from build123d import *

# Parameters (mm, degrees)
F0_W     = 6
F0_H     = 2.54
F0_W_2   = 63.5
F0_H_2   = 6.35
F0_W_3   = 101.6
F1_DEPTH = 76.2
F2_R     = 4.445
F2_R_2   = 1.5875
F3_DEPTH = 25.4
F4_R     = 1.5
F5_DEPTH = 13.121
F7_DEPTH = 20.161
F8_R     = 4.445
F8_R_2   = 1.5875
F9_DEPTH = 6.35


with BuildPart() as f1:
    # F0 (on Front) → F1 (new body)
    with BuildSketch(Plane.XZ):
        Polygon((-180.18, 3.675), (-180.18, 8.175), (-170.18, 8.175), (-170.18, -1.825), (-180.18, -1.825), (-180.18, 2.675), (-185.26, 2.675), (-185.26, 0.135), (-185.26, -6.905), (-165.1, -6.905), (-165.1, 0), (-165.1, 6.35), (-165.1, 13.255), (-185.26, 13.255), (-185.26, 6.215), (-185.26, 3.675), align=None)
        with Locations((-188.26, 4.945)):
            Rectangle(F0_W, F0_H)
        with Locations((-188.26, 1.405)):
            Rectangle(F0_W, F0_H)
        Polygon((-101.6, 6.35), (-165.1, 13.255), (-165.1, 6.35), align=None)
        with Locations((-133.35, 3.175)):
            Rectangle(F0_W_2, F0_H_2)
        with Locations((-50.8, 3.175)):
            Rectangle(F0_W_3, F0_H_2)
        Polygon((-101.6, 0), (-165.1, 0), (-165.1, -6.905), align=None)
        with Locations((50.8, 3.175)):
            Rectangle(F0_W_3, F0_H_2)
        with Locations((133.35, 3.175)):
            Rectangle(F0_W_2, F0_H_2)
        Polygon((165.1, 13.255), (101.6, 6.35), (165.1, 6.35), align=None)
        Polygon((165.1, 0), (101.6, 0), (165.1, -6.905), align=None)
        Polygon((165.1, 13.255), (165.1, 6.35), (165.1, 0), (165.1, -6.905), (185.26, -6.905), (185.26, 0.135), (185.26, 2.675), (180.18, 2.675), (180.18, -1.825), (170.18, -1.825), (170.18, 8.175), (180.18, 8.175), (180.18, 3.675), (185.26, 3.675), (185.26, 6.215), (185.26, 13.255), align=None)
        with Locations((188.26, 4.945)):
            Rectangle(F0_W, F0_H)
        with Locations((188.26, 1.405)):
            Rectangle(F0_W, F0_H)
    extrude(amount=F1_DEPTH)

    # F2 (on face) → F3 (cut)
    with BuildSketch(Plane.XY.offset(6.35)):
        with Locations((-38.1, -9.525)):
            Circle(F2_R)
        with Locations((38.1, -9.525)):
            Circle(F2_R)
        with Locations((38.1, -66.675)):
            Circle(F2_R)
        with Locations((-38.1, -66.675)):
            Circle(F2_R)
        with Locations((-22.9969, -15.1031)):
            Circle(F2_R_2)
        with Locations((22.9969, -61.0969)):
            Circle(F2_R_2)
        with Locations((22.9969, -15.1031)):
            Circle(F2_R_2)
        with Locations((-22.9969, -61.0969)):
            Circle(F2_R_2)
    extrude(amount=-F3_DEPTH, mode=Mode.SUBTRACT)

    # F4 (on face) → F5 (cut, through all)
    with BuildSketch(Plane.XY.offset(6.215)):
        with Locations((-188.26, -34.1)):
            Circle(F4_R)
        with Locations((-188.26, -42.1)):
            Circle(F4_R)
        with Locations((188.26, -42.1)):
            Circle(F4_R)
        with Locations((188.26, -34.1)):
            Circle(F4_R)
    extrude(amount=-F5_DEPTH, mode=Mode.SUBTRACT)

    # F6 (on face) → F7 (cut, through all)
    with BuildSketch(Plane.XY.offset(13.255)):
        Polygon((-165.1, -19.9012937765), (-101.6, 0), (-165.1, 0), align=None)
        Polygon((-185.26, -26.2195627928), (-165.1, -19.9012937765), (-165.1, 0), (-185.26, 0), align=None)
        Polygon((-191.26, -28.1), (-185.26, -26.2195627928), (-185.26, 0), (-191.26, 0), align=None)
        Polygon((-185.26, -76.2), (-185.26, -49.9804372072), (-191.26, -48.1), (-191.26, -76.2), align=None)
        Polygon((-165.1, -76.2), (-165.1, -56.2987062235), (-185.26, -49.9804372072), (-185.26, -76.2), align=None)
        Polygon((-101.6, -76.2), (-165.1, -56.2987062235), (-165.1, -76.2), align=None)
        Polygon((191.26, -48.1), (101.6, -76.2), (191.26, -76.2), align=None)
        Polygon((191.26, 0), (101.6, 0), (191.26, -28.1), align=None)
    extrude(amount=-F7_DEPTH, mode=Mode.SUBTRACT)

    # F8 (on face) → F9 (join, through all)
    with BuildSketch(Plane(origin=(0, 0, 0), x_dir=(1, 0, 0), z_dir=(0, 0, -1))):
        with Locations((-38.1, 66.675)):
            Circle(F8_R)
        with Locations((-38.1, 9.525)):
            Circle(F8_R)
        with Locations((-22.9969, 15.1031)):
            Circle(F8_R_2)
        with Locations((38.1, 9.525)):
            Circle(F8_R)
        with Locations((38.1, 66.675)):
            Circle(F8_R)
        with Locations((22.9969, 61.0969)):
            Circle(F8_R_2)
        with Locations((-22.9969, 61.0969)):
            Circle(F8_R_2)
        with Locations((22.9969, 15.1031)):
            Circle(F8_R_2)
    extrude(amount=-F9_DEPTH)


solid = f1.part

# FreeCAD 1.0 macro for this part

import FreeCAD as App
import Part
import Sketcher
from FreeCAD import Vector
Q = App.Units.Quantity


def add_polygon(sketch, points):
    """Adds a closed chain of lines whose ends are joined by coincident constraints."""
    first, n = sketch.GeometryCount, len(points)
    for a, b in zip(points, points[1:] + points[:1]):
        sketch.addGeometry(Part.LineSegment(App.Vector(*a, 0), App.Vector(*b, 0)), False)
    for i in range(n):
        sketch.addConstraint(Sketcher.Constraint("Coincident", first + i, 2, first + (i + 1) % n, 1))

doc = App.newDocument("Part")
body = doc.addObject("PartDesign::Body", "Body")

# Sketch on XZ plane
sketch1 = doc.addObject("Sketcher::SketchObject", "Sketch")
body.addObject(sketch1)
sketch1.AttachmentSupport = (doc.XZ_Plane, [""])
sketch1.MapMode = "FlatFace"
add_polygon(sketch1, [(-180.2, 3.7), (-180.2, 8.2), (-170.2, 8.2), (-170.2, -1.8), (-180.2, -1.8), (-180.2, 2.7), (-191.3, 2.7), (-191.3, 0.1), (-185.3, 0.1), (-185.3, -6.9), (-165.1, -6.9), (-101.6, 0), (101.6, 0), (165.1, -6.9), (185.3, -6.9), (185.3, 0.1), (191.3, 0.1), (191.3, 2.7), (180.2, 2.7), (180.2, -1.8), (170.2, -1.8), (170.2, 8.2), (180.2, 8.2), (180.2, 3.7), (191.3, 3.7), (191.3, 6.2), (185.3, 6.2), (185.3, 13.3), (165.1, 13.3), (101.6, 6.3), (-101.6, 6.3), (-165.1, 13.3), (-185.3, 13.3), (-185.3, 6.2), (-191.3, 6.2), (-191.3, 3.7)])  # lines 0-35
sketch1.addConstraint(Sketcher.Constraint("Vertical", 0))
sketch1.addConstraint(Sketcher.Constraint("Horizontal", 1))
sketch1.addConstraint(Sketcher.Constraint("Vertical", 2))
sketch1.addConstraint(Sketcher.Constraint("Horizontal", 3))
sketch1.addConstraint(Sketcher.Constraint("Vertical", 4))
sketch1.addConstraint(Sketcher.Constraint("Horizontal", 5))
sketch1.addConstraint(Sketcher.Constraint("Vertical", 6))
sketch1.addConstraint(Sketcher.Constraint("Horizontal", 7))
sketch1.addConstraint(Sketcher.Constraint("Vertical", 8))
sketch1.addConstraint(Sketcher.Constraint("Horizontal", 9))
sketch1.addConstraint(Sketcher.Constraint("Horizontal", 11))
sketch1.addConstraint(Sketcher.Constraint("Horizontal", 13))
sketch1.addConstraint(Sketcher.Constraint("Vertical", 14))
sketch1.addConstraint(Sketcher.Constraint("Horizontal", 15))
sketch1.addConstraint(Sketcher.Constraint("Vertical", 16))
sketch1.addConstraint(Sketcher.Constraint("Horizontal", 17))
sketch1.addConstraint(Sketcher.Constraint("Vertical", 18))
sketch1.addConstraint(Sketcher.Constraint("Horizontal", 19))
sketch1.addConstraint(Sketcher.Constraint("Vertical", 20))
sketch1.addConstraint(Sketcher.Constraint("Horizontal", 21))
sketch1.addConstraint(Sketcher.Constraint("Vertical", 22))
sketch1.addConstraint(Sketcher.Constraint("Horizontal", 23))
sketch1.addConstraint(Sketcher.Constraint("Vertical", 24))
sketch1.addConstraint(Sketcher.Constraint("Horizontal", 25))
sketch1.addConstraint(Sketcher.Constraint("Vertical", 26))
sketch1.addConstraint(Sketcher.Constraint("Horizontal", 27))
sketch1.addConstraint(Sketcher.Constraint("Horizontal", 29))
sketch1.addConstraint(Sketcher.Constraint("Horizontal", 31))
sketch1.addConstraint(Sketcher.Constraint("Vertical", 32))
sketch1.addConstraint(Sketcher.Constraint("Horizontal", 33))
sketch1.addConstraint(Sketcher.Constraint("Vertical", 34))
sketch1.addConstraint(Sketcher.Constraint("Horizontal", 35))
sketch1.addConstraint(Sketcher.Constraint("Symmetric", 10, 2, 11, 2, -1, 1))
sketch1.addConstraint(Sketcher.Constraint("Symmetric", 9, 2, 12, 2, -2))
sketch1.addConstraint(Sketcher.Constraint("Symmetric", 7, 2, 14, 2, -2))
sketch1.addConstraint(Sketcher.Constraint("Symmetric", 5, 2, 16, 2, -2))
sketch1.addConstraint(Sketcher.Constraint("Symmetric", 3, 2, 18, 2, -2))
sketch1.addConstraint(Sketcher.Constraint("Symmetric", 1, 2, 20, 2, -2))
sketch1.addConstraint(Sketcher.Constraint("Symmetric", 27, 2, 30, 2, -2))
sketch1.addConstraint(Sketcher.Constraint("Symmetric", 25, 2, 32, 2, -2))
sketch1.addConstraint(Sketcher.Constraint("Symmetric", 23, 2, 34, 2, -2))
sketch1.addConstraint(Sketcher.Constraint("Parallel", 10, 28))
sketch1.addConstraint(Sketcher.Constraint("Parallel", 12, 30))
sketch1.addConstraint(Sketcher.Constraint("Vertical", 0, 2, 3, 2))
sketch1.addConstraint(Sketcher.Constraint("Vertical", 18, 2, 21, 2))
sketch1.addConstraint(Sketcher.Constraint("Vertical", 16, 2, 23, 2))
sketch1.addConstraint(Sketcher.Constraint("Vertical", 14, 2, 25, 2))
sketch1.addConstraint(Sketcher.Constraint("Vertical", 12, 2, 27, 2))
sketch1.addConstraint(Sketcher.Constraint("Vertical", 11, 2, 28, 2))
sketch1.addConstraint(Sketcher.Constraint("Equal", 21, 2))
sketch1.addConstraint(Sketcher.Constraint("Equal", 0, 4))
sketch1.addConstraint(Sketcher.Constraint("Equal", 16, 24))
sketch1.addConstraint(Sketcher.Constraint("Equal", 14, 26))
sketch1.addConstraint(Sketcher.Constraint("DistanceX", 11, 1, 11, 2, Q("8 in")))
sketch1.addConstraint(Sketcher.Constraint("DistanceY", 6, 2, 6, 1, Q("0.1 in")))
sketch1.addConstraint(Sketcher.Constraint("DistanceX", 9, 2, 12, 2, Q("13 in")))
sketch1.addConstraint(Sketcher.Constraint("DistanceX", 1, 2, -1, 1, Q("6.7 in")))
sketch1.addConstraint(Sketcher.Constraint("DistanceX", 7, 2, 3, 2, Q("0.2 in")))
sketch1.addConstraint(Sketcher.Constraint("DistanceY", 8, 2, 3, 2, Q("0.2 in")))
sketch1.addConstraint(Sketcher.Constraint("DistanceY", -1, 1, 28, 2, Q("0.25 in")))
sketch1.addConstraint(Sketcher.Constraint("DistanceX", 1, 1, 1, 2, Q("10 mm")))
sketch1.addConstraint(Sketcher.Constraint("DistanceX", 5, 2, 5, 1, Q("11.08 mm")))
sketch1.addConstraint(Sketcher.Constraint("DistanceY", 0, 1, 0, 2, Q("4.5 mm")))
pad1 = doc.addObject("PartDesign::Pad", "Pad")
body.addObject(pad1)
pad1.Profile = sketch1
pad1.Length = Q("3 in")

# Sketch on XY plane
sketch2 = doc.addObject("Sketcher::SketchObject", "Sketch001")
body.addObject(sketch2)
sketch2.AttachmentSupport = (doc.XY_Plane, [""])
sketch2.MapMode = "FlatFace"
sketch2.AttachmentOffset = App.Placement(Vector(0, 0, 0.25 * 25.4), App.Rotation())
sketch2.addGeometry(Part.Circle(Vector(-38.1, -9.5, 0), Vector(0, 0, 1), 4.4), False)
sketch2.addGeometry(Part.Circle(Vector(38.1, -9.5, 0), Vector(0, 0, 1), 4.4), False)
sketch2.addGeometry(Part.Circle(Vector(38.1, -66.7, 0), Vector(0, 0, 1), 4.4), False)
sketch2.addGeometry(Part.Circle(Vector(-38.1, -66.7, 0), Vector(0, 0, 1), 4.4), False)
sketch2.addGeometry(Part.Circle(Vector(-23, -15.1, 0), Vector(0, 0, 1), 1.6), False)
sketch2.addGeometry(Part.Circle(Vector(23, -61.1, 0), Vector(0, 0, 1), 1.6), False)
sketch2.addGeometry(Part.Circle(Vector(23, -15.1, 0), Vector(0, 0, 1), 1.6), False)
sketch2.addGeometry(Part.Circle(Vector(-23, -61.1, 0), Vector(0, 0, 1), 1.6), False)
sketch2.addConstraint(Sketcher.Constraint("Equal", 0, 1))
sketch2.addConstraint(Sketcher.Constraint("Equal", 1, 2))
sketch2.addConstraint(Sketcher.Constraint("Equal", 2, 3))
sketch2.addConstraint(Sketcher.Constraint("Equal", 4, 5))
sketch2.addConstraint(Sketcher.Constraint("Equal", 5, 6))
sketch2.addConstraint(Sketcher.Constraint("Equal", 6, 7))
sketch2.addConstraint(Sketcher.Constraint("Symmetric", 0, 3, 1, 3, -2))
sketch2.addConstraint(Sketcher.Constraint("Symmetric", 2, 3, 3, 3, -2))
sketch2.addConstraint(Sketcher.Constraint("Symmetric", 4, 3, 6, 3, -2))
sketch2.addConstraint(Sketcher.Constraint("Symmetric", 5, 3, 7, 3, -2))
sketch2.addConstraint(Sketcher.Constraint("Vertical", 1, 3, 2, 3))
sketch2.addConstraint(Sketcher.Constraint("Vertical", 5, 3, 6, 3))
sketch2.addConstraint(Sketcher.Constraint("Diameter", 0, Q("0.35 in")))
sketch2.addConstraint(Sketcher.Constraint("Diameter", 4, Q("0.125 in")))
sketch2.addConstraint(Sketcher.Constraint("DistanceX", 0, 3, 1, 3, Q("3 in")))
sketch2.addConstraint(Sketcher.Constraint("DistanceY", 2, 3, 1, 3, Q("2.25 in")))
sketch2.addConstraint(Sketcher.Constraint("DistanceY", 0, 3, -1, 1, Q("0.375 in")))
sketch2.addConstraint(Sketcher.Constraint("DistanceX", 4, 3, -1, 1, Q("22.9969 mm")))
sketch2.addConstraint(Sketcher.Constraint("DistanceY", 4, 3, -1, 1, Q("15.1031 mm")))
sketch2.addConstraint(Sketcher.Constraint("DistanceY", 5, 3, -1, 1, Q("61.0969 mm")))
pocket1 = doc.addObject("PartDesign::Pocket", "Pocket")
body.addObject(pocket1)
pocket1.Profile = sketch2
pocket1.Length = Q("1 in")

# Sketch on XY plane
sketch3 = doc.addObject("Sketcher::SketchObject", "Sketch002")
body.addObject(sketch3)
sketch3.AttachmentSupport = (doc.XY_Plane, [""])
sketch3.MapMode = "FlatFace"
sketch3.AttachmentOffset = App.Placement(Vector(0, 0, 6.215), App.Rotation())
sketch3.addGeometry(Part.Circle(Vector(-188.3, -34.1, 0), Vector(0, 0, 1), 1.5), False)
sketch3.addGeometry(Part.Circle(Vector(-188.3, -42.1, 0), Vector(0, 0, 1), 1.5), False)
sketch3.addGeometry(Part.Circle(Vector(188.3, -42.1, 0), Vector(0, 0, 1), 1.5), False)
sketch3.addGeometry(Part.Circle(Vector(188.3, -34.1, 0), Vector(0, 0, 1), 1.5), False)
sketch3.addConstraint(Sketcher.Constraint("Equal", 0, 1))
sketch3.addConstraint(Sketcher.Constraint("Equal", 1, 2))
sketch3.addConstraint(Sketcher.Constraint("Equal", 2, 3))
sketch3.addConstraint(Sketcher.Constraint("Symmetric", 1, 3, 2, 3, -2))
sketch3.addConstraint(Sketcher.Constraint("Symmetric", 0, 3, 3, 3, -2))
sketch3.addConstraint(Sketcher.Constraint("Vertical", 0, 3, 1, 3))
sketch3.addConstraint(Sketcher.Constraint("Diameter", 0, Q("3 mm")))
sketch3.addConstraint(Sketcher.Constraint("DistanceX", 0, 3, -1, 1, Q("188.26 mm")))
sketch3.addConstraint(Sketcher.Constraint("DistanceY", 0, 3, -1, 1, Q("34.1 mm")))
sketch3.addConstraint(Sketcher.Constraint("DistanceY", 1, 3, -1, 1, Q("42.1 mm")))
pocket2 = doc.addObject("PartDesign::Pocket", "Pocket001")
body.addObject(pocket2)
pocket2.Profile = sketch3
pocket2.Type = "ThroughAll"

# Sketch on XY plane
sketch4 = doc.addObject("Sketcher::SketchObject", "Sketch003")
body.addObject(sketch4)
sketch4.AttachmentSupport = (doc.XY_Plane, [""])
sketch4.MapMode = "FlatFace"
sketch4.AttachmentOffset = App.Placement(Vector(0, 0, 13.255), App.Rotation())
add_polygon(sketch4, [(-102, 0), (-191, 0), (-191, -28), (-185, -26)])  # lines 0-3
add_polygon(sketch4, [(-185, -50), (-191, -48), (-191, -76), (-102, -76)])  # lines 4-7
add_polygon(sketch4, [(191, -48), (102, -76), (191, -76)])  # lines 8-10
add_polygon(sketch4, [(191, 0), (102, 0), (191, -28)])  # lines 11-13
sketch4.addConstraint(Sketcher.Constraint("Horizontal", 0))
sketch4.addConstraint(Sketcher.Constraint("Vertical", 1))
sketch4.addConstraint(Sketcher.Constraint("Vertical", 5))
sketch4.addConstraint(Sketcher.Constraint("Horizontal", 6))
sketch4.addConstraint(Sketcher.Constraint("Horizontal", 9))
sketch4.addConstraint(Sketcher.Constraint("Vertical", 10))
sketch4.addConstraint(Sketcher.Constraint("Horizontal", 11))
sketch4.addConstraint(Sketcher.Constraint("Vertical", 13))
sketch4.addConstraint(Sketcher.Constraint("Symmetric", 3, 2, 11, 2, -1, 1))
sketch4.addConstraint(Sketcher.Constraint("Symmetric", 6, 2, 8, 2, -2))
sketch4.addConstraint(Sketcher.Constraint("Symmetric", 4, 2, 10, 2, -2))
sketch4.addConstraint(Sketcher.Constraint("Symmetric", 1, 2, 12, 2, -2))
sketch4.addConstraint(Sketcher.Constraint("PointOnObject", 0, 2, -1))
sketch4.addConstraint(Sketcher.Constraint("Parallel", 2, 3))
sketch4.addConstraint(Sketcher.Constraint("Parallel", 4, 7))
sketch4.addConstraint(Sketcher.Constraint("Parallel", 3, 8))
sketch4.addConstraint(Sketcher.Constraint("Vertical", 1, 2, 4, 2))
sketch4.addConstraint(Sketcher.Constraint("Vertical", 3, 2, 6, 2))
sketch4.addConstraint(Sketcher.Constraint("Vertical", 2, 2, 7, 2))
sketch4.addConstraint(Sketcher.Constraint("DistanceX", 3, 2, -1, 1, Q("4 in")))
sketch4.addConstraint(Sketcher.Constraint("DistanceY", 5, 2, -1, 1, Q("3 in")))
sketch4.addConstraint(Sketcher.Constraint("DistanceX", 0, 2, 0, 1, Q("89.66 mm")))
sketch4.addConstraint(Sketcher.Constraint("DistanceY", 1, 2, 1, 1, Q("28.1 mm")))
sketch4.addConstraint(Sketcher.Constraint("DistanceX", 2, 2, -1, 1, Q("185.26 mm")))
pocket3 = doc.addObject("PartDesign::Pocket", "Pocket002")
body.addObject(pocket3)
pocket3.Profile = sketch4
pocket3.Type = "ThroughAll"

# Sketch on XY plane
sketch5 = doc.addObject("Sketcher::SketchObject", "Sketch004")
body.addObject(sketch5)
sketch5.AttachmentSupport = (doc.XY_Plane, [""])
sketch5.MapMode = "FlatFace"
sketch5.addGeometry(Part.Circle(Vector(-38.1, -66.7, 0), Vector(0, 0, 1), 4.4), False)
sketch5.addGeometry(Part.Circle(Vector(-38.1, -9.5, 0), Vector(0, 0, 1), 4.4), False)
sketch5.addGeometry(Part.Circle(Vector(-23, -15.1, 0), Vector(0, 0, 1), 1.6), False)
sketch5.addGeometry(Part.Circle(Vector(38.1, -9.5, 0), Vector(0, 0, 1), 4.4), False)
sketch5.addGeometry(Part.Circle(Vector(38.1, -66.7, 0), Vector(0, 0, 1), 4.4), False)
sketch5.addGeometry(Part.Circle(Vector(23, -61.1, 0), Vector(0, 0, 1), 1.6), False)
sketch5.addGeometry(Part.Circle(Vector(-23, -61.1, 0), Vector(0, 0, 1), 1.6), False)
sketch5.addGeometry(Part.Circle(Vector(23, -15.1, 0), Vector(0, 0, 1), 1.6), False)
sketch5.addConstraint(Sketcher.Constraint("Equal", 0, 1))
sketch5.addConstraint(Sketcher.Constraint("Equal", 1, 3))
sketch5.addConstraint(Sketcher.Constraint("Equal", 3, 4))
sketch5.addConstraint(Sketcher.Constraint("Equal", 2, 5))
sketch5.addConstraint(Sketcher.Constraint("Equal", 5, 6))
sketch5.addConstraint(Sketcher.Constraint("Equal", 6, 7))
sketch5.addConstraint(Sketcher.Constraint("Symmetric", 1, 3, 3, 3, -2))
sketch5.addConstraint(Sketcher.Constraint("Symmetric", 0, 3, 4, 3, -2))
sketch5.addConstraint(Sketcher.Constraint("Symmetric", 5, 3, 6, 3, -2))
sketch5.addConstraint(Sketcher.Constraint("Symmetric", 2, 3, 7, 3, -2))
sketch5.addConstraint(Sketcher.Constraint("Vertical", 0, 3, 1, 3))
sketch5.addConstraint(Sketcher.Constraint("Vertical", 2, 3, 6, 3))
sketch5.addConstraint(Sketcher.Constraint("Diameter", 0, Q("0.35 in")))
sketch5.addConstraint(Sketcher.Constraint("Diameter", 2, Q("0.125 in")))
sketch5.addConstraint(Sketcher.Constraint("DistanceX", 1, 3, 3, 3, Q("3 in")))
sketch5.addConstraint(Sketcher.Constraint("DistanceY", 0, 3, 1, 3, Q("2.25 in")))
sketch5.addConstraint(Sketcher.Constraint("DistanceY", 0, 3, -1, 1, Q("2.625 in")))
sketch5.addConstraint(Sketcher.Constraint("DistanceX", 2, 3, -1, 1, Q("22.9969 mm")))
sketch5.addConstraint(Sketcher.Constraint("DistanceY", 2, 3, -1, 1, Q("15.1031 mm")))
sketch5.addConstraint(Sketcher.Constraint("DistanceY", 5, 3, -1, 1, Q("61.0969 mm")))
pad2 = doc.addObject("PartDesign::Pad", "Pad001")
body.addObject(pad2)
pad2.Profile = sketch5
pad2.Type = "UpToLast"

doc.recompute()
